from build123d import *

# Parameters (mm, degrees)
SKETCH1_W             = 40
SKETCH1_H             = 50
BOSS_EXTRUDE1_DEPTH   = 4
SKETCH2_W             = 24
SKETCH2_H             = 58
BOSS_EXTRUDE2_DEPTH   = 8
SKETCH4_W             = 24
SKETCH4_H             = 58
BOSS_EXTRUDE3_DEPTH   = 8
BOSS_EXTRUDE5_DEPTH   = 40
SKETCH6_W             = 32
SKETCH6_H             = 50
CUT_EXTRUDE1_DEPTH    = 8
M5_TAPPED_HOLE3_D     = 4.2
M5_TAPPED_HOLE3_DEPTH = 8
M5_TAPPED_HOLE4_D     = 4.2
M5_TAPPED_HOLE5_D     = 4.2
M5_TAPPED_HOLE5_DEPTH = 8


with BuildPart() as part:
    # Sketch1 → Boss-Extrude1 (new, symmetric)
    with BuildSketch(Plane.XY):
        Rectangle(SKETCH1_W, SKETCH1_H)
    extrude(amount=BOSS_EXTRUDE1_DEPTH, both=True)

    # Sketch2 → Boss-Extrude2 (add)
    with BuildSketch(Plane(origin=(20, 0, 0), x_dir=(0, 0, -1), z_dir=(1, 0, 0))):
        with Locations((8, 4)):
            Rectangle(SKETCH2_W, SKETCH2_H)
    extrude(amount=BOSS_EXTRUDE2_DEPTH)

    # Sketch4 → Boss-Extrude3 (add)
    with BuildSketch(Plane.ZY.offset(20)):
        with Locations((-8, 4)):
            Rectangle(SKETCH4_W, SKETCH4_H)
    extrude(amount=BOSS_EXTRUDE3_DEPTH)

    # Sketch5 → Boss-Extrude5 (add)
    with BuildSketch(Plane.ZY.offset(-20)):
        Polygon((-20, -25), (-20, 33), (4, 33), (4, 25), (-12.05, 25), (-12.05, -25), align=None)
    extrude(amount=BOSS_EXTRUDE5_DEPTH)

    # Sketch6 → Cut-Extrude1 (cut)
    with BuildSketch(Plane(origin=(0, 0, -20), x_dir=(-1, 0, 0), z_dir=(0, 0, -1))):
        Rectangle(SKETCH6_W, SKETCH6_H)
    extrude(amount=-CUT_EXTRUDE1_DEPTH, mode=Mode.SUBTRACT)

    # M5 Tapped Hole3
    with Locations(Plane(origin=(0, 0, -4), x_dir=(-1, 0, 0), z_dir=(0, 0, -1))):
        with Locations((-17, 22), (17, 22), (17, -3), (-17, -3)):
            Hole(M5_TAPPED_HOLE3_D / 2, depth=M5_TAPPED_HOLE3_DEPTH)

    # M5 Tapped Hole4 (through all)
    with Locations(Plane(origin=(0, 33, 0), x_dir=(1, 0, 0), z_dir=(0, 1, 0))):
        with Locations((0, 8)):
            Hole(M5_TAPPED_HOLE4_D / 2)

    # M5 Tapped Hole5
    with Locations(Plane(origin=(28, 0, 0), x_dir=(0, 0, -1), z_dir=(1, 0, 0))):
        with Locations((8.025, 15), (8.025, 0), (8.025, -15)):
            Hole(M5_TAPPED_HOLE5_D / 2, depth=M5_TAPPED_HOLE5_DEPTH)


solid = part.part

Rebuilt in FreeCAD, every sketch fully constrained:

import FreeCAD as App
import Part
import Sketcher

V = App.Vector
Q = App.Units.Quantity

doc = App.newDocument("Part")
body = doc.addObject("PartDesign::Body", "Body")

# Sketch on XY plane
sketch1 = body.newObject("Sketcher::SketchObject", "Sketch")
sketch1.AttachmentSupport = (doc.getObject("XY_Plane"), [""])
sketch1.MapMode = "FlatFace"
sketch1.addGeometry(Part.LineSegment(V(-20, 25, 0), V(-20, -25, 0)), False)
sketch1.addGeometry(Part.LineSegment(V(-20, -25, 0), V(20, -25, 0)), False)
sketch1.addGeometry(Part.LineSegment(V(20, -25, 0), V(20, 25, 0)), False)
sketch1.addGeometry(Part.LineSegment(V(20, 25, 0), V(-20, 25, 0)), False)
sketch1.addConstraint(Sketcher.Constraint("Coincident", 0, 2, 1, 1))
sketch1.addConstraint(Sketcher.Constraint("Coincident", 1, 2, 2, 1))
sketch1.addConstraint(Sketcher.Constraint("Coincident", 2, 2, 3, 1))
sketch1.addConstraint(Sketcher.Constraint("Coincident", 3, 2, 0, 1))
sketch1.addConstraint(Sketcher.Constraint("Vertical", 0))
sketch1.addConstraint(Sketcher.Constraint("Horizontal", 1))
sketch1.addConstraint(Sketcher.Constraint("Vertical", 2))
sketch1.addConstraint(Sketcher.Constraint("Horizontal", 3))
sketch1.addConstraint(Sketcher.Constraint("Symmetric", 0, 2, 2, 2, -1, 1))
sketch1.addConstraint(Sketcher.Constraint("DistanceX", 1, 1, 1, 2, Q("40 mm")))
sketch1.addConstraint(Sketcher.Constraint("DistanceY", 0, 2, 0, 1, Q("50 mm")))
pad1 = body.newObject("PartDesign::Pad", "Pad")
pad1.Profile = sketch1
pad1.Length = 8
pad1.Midplane = True

# Sketch on YZ plane
sketch2 = body.newObject("Sketcher::SketchObject", "Sketch001")
sketch2.AttachmentSupport = (doc.getObject("YZ_Plane"), [""])
sketch2.MapMode = "FlatFace"
sketch2.AttachmentOffset = App.Placement(V(0, 0, 20), App.Rotation())
sketch2.addGeometry(Part.LineSegment(V(33, 4, 0), V(-25, 4, 0)), False)
sketch2.addGeometry(Part.LineSegment(V(-25, 4, 0), V(-25, -20, 0)), False)
sketch2.addGeometry(Part.LineSegment(V(-25, -20, 0), V(33, -20, 0)), False)
sketch2.addGeometry(Part.LineSegment(V(33, -20, 0), V(33, 4, 0)), False)
sketch2.addConstraint(Sketcher.Constraint("Coincident", 0, 2, 1, 1))
sketch2.addConstraint(Sketcher.Constraint("Coincident", 1, 2, 2, 1))
sketch2.addConstraint(Sketcher.Constraint("Coincident", 2, 2, 3, 1))
sketch2.addConstraint(Sketcher.Constraint("Coincident", 3, 2, 0, 1))
sketch2.addConstraint(Sketcher.Constraint("Horizontal", 0))
sketch2.addConstraint(Sketcher.Constraint("Vertical", 1))
sketch2.addConstraint(Sketcher.Constraint("Horizontal", 2))
sketch2.addConstraint(Sketcher.Constraint("Vertical", 3))
sketch2.addConstraint(Sketcher.Constraint("DistanceX", 0, 2, 0, 1, Q("58 mm")))
sketch2.addConstraint(Sketcher.Constraint("DistanceY", 1, 2, 1, 1, Q("24 mm")))
sketch2.addConstraint(Sketcher.Constraint("DistanceX", 0, 2, -1, 1, Q("25 mm")))
sketch2.addConstraint(Sketcher.Constraint("DistanceY", -1, 1, 0, 2, Q("4 mm")))
pad2 = body.newObject("PartDesign::Pad", "Pad001")
pad2.Profile = sketch2
pad2.Length = 8

# Sketch on YZ plane
sketch3 = body.newObject("Sketcher::SketchObject", "Sketch002")
sketch3.AttachmentSupport = (doc.getObject("YZ_Plane"), [""])
sketch3.MapMode = "FlatFace"
sketch3.AttachmentOffset = App.Placement(V(0, 0, -20), App.Rotation())
sketch3.addGeometry(Part.LineSegment(V(33, -20, 0), V(-25, -20, 0)), False)
sketch3.addGeometry(Part.LineSegment(V(-25, -20, 0), V(-25, 4, 0)), False)
sketch3.addGeometry(Part.LineSegment(V(-25, 4, 0), V(33, 4, 0)), False)
sketch3.addGeometry(Part.LineSegment(V(33, 4, 0), V(33, -20, 0)), False)
sketch3.addConstraint(Sketcher.Constraint("Coincident", 0, 2, 1, 1))
sketch3.addConstraint(Sketcher.Constraint("Coincident", 1, 2, 2, 1))
sketch3.addConstraint(Sketcher.Constraint("Coincident", 2, 2, 3, 1))
sketch3.addConstraint(Sketcher.Constraint("Coincident", 3, 2, 0, 1))
sketch3.addConstraint(Sketcher.Constraint("Horizontal", 0))
sketch3.addConstraint(Sketcher.Constraint("Vertical", 1))
sketch3.addConstraint(Sketcher.Constraint("Horizontal", 2))
sketch3.addConstraint(Sketcher.Constraint("Vertical", 3))
sketch3.addConstraint(Sketcher.Constraint("DistanceX", 0, 2, 0, 1, Q("58 mm")))
sketch3.addConstraint(Sketcher.Constraint("DistanceY", 1, 1, 1, 2, Q("24 mm")))
sketch3.addConstraint(Sketcher.Constraint("DistanceX", 0, 2, -1, 1, Q("25 mm")))
sketch3.addConstraint(Sketcher.Constraint("DistanceY", 0, 2, -1, 1, Q("20 mm")))
pad3 = body.newObject("PartDesign::Pad", "Pad002")
pad3.Profile = sketch3
pad3.Length = 8
pad3.Reversed = True

# Sketch on YZ plane
sketch4 = body.newObject("Sketcher::SketchObject", "Sketch003")
sketch4.AttachmentSupport = (doc.getObject("YZ_Plane"), [""])
sketch4.MapMode = "FlatFace"
sketch4.AttachmentOffset = App.Placement(V(0, 0, 20), App.Rotation())
sketch4.addGeometry(Part.LineSegment(V(33, -20, 0), V(-25, -20, 0)), False)
sketch4.addGeometry(Part.LineSegment(V(-25, -20, 0), V(-25, -12, 0)), False)
sketch4.addGeometry(Part.LineSegment(V(-25, -12, 0), V(25, -12, 0)), False)
sketch4.addGeometry(Part.LineSegment(V(25, -12, 0), V(25, 4, 0)), False)
sketch4.addGeometry(Part.LineSegment(V(25, 4, 0), V(33, 4, 0)), False)
sketch4.addGeometry(Part.LineSegment(V(33, 4, 0), V(33, -20, 0)), False)
sketch4.addConstraint(Sketcher.Constraint("Coincident", 0, 2, 1, 1))
sketch4.addConstraint(Sketcher.Constraint("Coincident", 1, 2, 2, 1))
sketch4.addConstraint(Sketcher.Constraint("Coincident", 2, 2, 3, 1))
sketch4.addConstraint(Sketcher.Constraint("Coincident", 3, 2, 4, 1))
sketch4.addConstraint(Sketcher.Constraint("Coincident", 4, 2, 5, 1))
sketch4.addConstraint(Sketcher.Constraint("Coincident", 5, 2, 0, 1))
sketch4.addConstraint(Sketcher.Constraint("Horizontal", 0))
sketch4.addConstraint(Sketcher.Constraint("Vertical", 1))
sketch4.addConstraint(Sketcher.Constraint("Horizontal", 2))
sketch4.addConstraint(Sketcher.Constraint("Vertical", 3))
sketch4.addConstraint(Sketcher.Constraint("Horizontal", 4))
sketch4.addConstraint(Sketcher.Constraint("Vertical", 5))
sketch4.addConstraint(Sketcher.Constraint("DistanceX", 0, 2, 0, 1, Q("58 mm")))
sketch4.addConstraint(Sketcher.Constraint("DistanceX", 2, 1, 2, 2, Q("50 mm")))
sketch4.addConstraint(Sketcher.Constraint("DistanceY", 5, 2, 5, 1, Q("24 mm")))
sketch4.addConstraint(Sketcher.Constraint("DistanceX", 0, 2, -1, 1, Q("25 mm")))
sketch4.addConstraint(Sketcher.Constraint("DistanceY", 0, 2, -1, 1, Q("20 mm")))
sketch4.addConstraint(Sketcher.Constraint("DistanceY", 1, 1, 1, 2, Q("7.95 mm")))
pad4 = body.newObject("PartDesign::Pad", "Pad003")
pad4.Profile = sketch4
pad4.Length = 40
pad4.Reversed = True

# Sketch on XY plane
sketch5 = body.newObject("Sketcher::SketchObject", "Sketch004")
sketch5.AttachmentSupport = (doc.getObject("XY_Plane"), [""])
sketch5.MapMode = "FlatFace"
sketch5.AttachmentOffset = App.Placement(V(0, 0, -20), App.Rotation())
sketch5.addGeometry(Part.LineSegment(V(16, 25, 0), V(16, -25, 0)), False)
sketch5.addGeometry(Part.LineSegment(V(16, -25, 0), V(-16, -25, 0)), False)
sketch5.addGeometry(Part.LineSegment(V(-16, -25, 0), V(-16, 25, 0)), False)
sketch5.addGeometry(Part.LineSegment(V(-16, 25, 0), V(16, 25, 0)), False)
sketch5.addConstraint(Sketcher.Constraint("Coincident", 0, 2, 1, 1))
sketch5.addConstraint(Sketcher.Constraint("Coincident", 1, 2, 2, 1))
sketch5.addConstraint(Sketcher.Constraint("Coincident", 2, 2, 3, 1))
sketch5.addConstraint(Sketcher.Constraint("Coincident", 3, 2, 0, 1))
sketch5.addConstraint(Sketcher.Constraint("Vertical", 0))
sketch5.addConstraint(Sketcher.Constraint("Horizontal", 1))
sketch5.addConstraint(Sketcher.Constraint("Vertical", 2))
sketch5.addConstraint(Sketcher.Constraint("Horizontal", 3))
sketch5.addConstraint(Sketcher.Constraint("Symmetric", 0, 2, 2, 2, -1, 1))
sketch5.addConstraint(Sketcher.Constraint("DistanceX", 1, 2, 1, 1, Q("32 mm")))
sketch5.addConstraint(Sketcher.Constraint("DistanceY", 0, 2, 0, 1, Q("50 mm")))
pocket1 = body.newObject("PartDesign::Pocket", "Pocket")
pocket1.Profile = sketch5
pocket1.Length = 8
pocket1.Reversed = True

# Sketch on XY plane
sketch6 = body.newObject("Sketcher::SketchObject", "Sketch005")
sketch6.AttachmentSupport = (doc.getObject("XY_Plane"), [""])
sketch6.MapMode = "FlatFace"
sketch6.AttachmentOffset = App.Placement(V(0, 0, -4), App.Rotation())
sketch6.addGeometry(Part.Circle(V(17, 22, 0), V(0, 0, 1), 2.1), False)
sketch6.addGeometry(Part.Circle(V(-17, 22, 0), V(0, 0, 1), 2.1), False)
sketch6.addGeometry(Part.Circle(V(-17, -3, 0), V(0, 0, 1), 2.1), False)
sketch6.addGeometry(Part.Circle(V(17, -3, 0), V(0, 0, 1), 2.1), False)
sketch6.addConstraint(Sketcher.Constraint("Equal", 0, 1))
sketch6.addConstraint(Sketcher.Constraint("Equal", 1, 2))
sketch6.addConstraint(Sketcher.Constraint("Equal", 2, 3))
sketch6.addConstraint(Sketcher.Constraint("Symmetric", 0, 3, 1, 3, -2))
sketch6.addConstraint(Sketcher.Constraint("Symmetric", 2, 3, 3, 3, -2))
sketch6.addConstraint(Sketcher.Constraint("Vertical", 1, 3, 2, 3))
sketch6.addConstraint(Sketcher.Constraint("Diameter", 0, Q("4.2 mm")))
sketch6.addConstraint(Sketcher.Constraint("DistanceX", -1, 1, 0, 3, Q("17 mm")))
sketch6.addConstraint(Sketcher.Constraint("DistanceY", -1, 1, 0, 3, Q("22 mm")))
sketch6.addConstraint(Sketcher.Constraint("DistanceY", 2, 3, -1, 1, Q("3 mm")))
doc.recompute()
hole = body.newObject("PartDesign::Hole", "Hole")
hole.Profile = sketch6
hole.ThreadType = "None"
hole.Diameter = 4.2
hole.DepthType = "Dimension"
hole.Depth = 8
hole.DrillPoint = "Flat"
hole.Reversed = True

# Sketch on XZ plane
sketch7 = body.newObject("Sketcher::SketchObject", "Sketch006")
sketch7.AttachmentSupport = (doc.getObject("XZ_Plane"), [""])
sketch7.MapMode = "FlatFace"
sketch7.AttachmentOffset = App.Placement(V(0, 0, -33), App.Rotation())
sketch7.addGeometry(Part.Circle(V(0, -8, 0), V(0, 0, 1), 2.1), False)
sketch7.addConstraint(Sketcher.Constraint("PointOnObject", 0, 3, -2))
sketch7.addConstraint(Sketcher.Constraint("Diameter", 0, Q("4.2 mm")))
sketch7.addConstraint(Sketcher.Constraint("DistanceY", 0, 3, -1, 1, Q("8 mm")))
doc.recompute()
hole2 = body.newObject("PartDesign::Hole", "Hole001")
hole2.Profile = sketch7
hole2.ThreadType = "None"
hole2.Diameter = 4.2
hole2.DepthType = "ThroughAll"
hole2.Reversed = True

# Sketch on YZ plane
sketch8 = body.newObject("Sketcher::SketchObject", "Sketch007")
sketch8.AttachmentSupport = (doc.getObject("YZ_Plane"), [""])
sketch8.MapMode = "FlatFace"
sketch8.AttachmentOffset = App.Placement(V(0, 0, 28), App.Rotation())
sketch8.addGeometry(Part.Circle(V(15, -8, 0), V(0, 0, 1), 2.1), False)
sketch8.addGeometry(Part.Circle(V(0, -8, 0), V(0, 0, 1), 2.1), False)
sketch8.addGeometry(Part.Circle(V(-15, -8, 0), V(0, 0, 1), 2.1), False)
sketch8.addConstraint(Sketcher.Constraint("Equal", 0, 1))
sketch8.addConstraint(Sketcher.Constraint("Equal", 1, 2))
sketch8.addConstraint(Sketcher.Constraint("Symmetric", 0, 3, 2, 3, -2))
sketch8.addConstraint(Sketcher.Constraint("PointOnObject", 1, 3, -2))
sketch8.addConstraint(Sketcher.Constraint("Horizontal", 0, 3, 1, 3))
sketch8.addConstraint(Sketcher.Constraint("Diameter", 0, Q("4.2 mm")))
sketch8.addConstraint(Sketcher.Constraint("DistanceX", -1, 1, 0, 3, Q("15 mm")))
sketch8.addConstraint(Sketcher.Constraint("DistanceY", 0, 3, -1, 1, Q("8.025 mm")))
doc.recompute()
hole3 = body.newObject("PartDesign::Hole", "Hole002")
hole3.Profile = sketch8
hole3.ThreadType = "None"
hole3.Diameter = 4.2
hole3.DepthType = "Dimension"
hole3.Depth = 8
hole3.DrillPoint = "Flat"

doc.recompute()
